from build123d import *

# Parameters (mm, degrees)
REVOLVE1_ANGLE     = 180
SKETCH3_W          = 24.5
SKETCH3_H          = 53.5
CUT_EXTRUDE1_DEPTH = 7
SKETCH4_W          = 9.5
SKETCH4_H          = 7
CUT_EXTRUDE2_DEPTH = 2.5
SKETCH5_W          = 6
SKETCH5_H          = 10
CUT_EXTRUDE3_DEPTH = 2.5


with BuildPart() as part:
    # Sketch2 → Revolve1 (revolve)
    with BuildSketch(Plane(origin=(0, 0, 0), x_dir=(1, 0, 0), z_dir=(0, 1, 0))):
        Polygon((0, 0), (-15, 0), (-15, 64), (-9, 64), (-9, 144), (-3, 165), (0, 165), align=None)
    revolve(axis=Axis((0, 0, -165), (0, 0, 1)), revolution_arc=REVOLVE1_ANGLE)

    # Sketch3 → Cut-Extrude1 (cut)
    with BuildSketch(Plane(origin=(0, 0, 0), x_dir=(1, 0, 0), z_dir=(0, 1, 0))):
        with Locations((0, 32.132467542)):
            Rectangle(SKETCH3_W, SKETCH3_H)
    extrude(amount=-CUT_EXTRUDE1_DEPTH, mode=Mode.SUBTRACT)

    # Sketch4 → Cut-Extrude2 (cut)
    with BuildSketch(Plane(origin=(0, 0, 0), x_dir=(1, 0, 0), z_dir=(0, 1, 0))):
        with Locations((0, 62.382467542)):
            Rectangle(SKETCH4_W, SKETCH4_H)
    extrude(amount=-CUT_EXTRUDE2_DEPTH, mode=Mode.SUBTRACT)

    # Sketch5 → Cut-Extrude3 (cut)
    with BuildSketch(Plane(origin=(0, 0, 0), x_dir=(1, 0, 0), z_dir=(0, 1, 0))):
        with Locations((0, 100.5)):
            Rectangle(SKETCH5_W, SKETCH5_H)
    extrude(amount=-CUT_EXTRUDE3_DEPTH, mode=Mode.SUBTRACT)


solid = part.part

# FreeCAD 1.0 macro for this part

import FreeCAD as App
import Part
import Sketcher
from FreeCAD import Vector


def add_polygon(sketch, points):
    """Adds a closed chain of lines whose ends are joined by coincident constraints."""
    first, n = sketch.GeometryCount, len(points)
    for a, b in zip(points, points[1:] + points[:1]):
        sketch.addGeometry(Part.LineSegment(App.Vector(*a, 0), App.Vector(*b, 0)), False)
    for i in range(n):
        sketch.addConstraint(Sketcher.Constraint("Coincident", first + i, 2, first + (i + 1) % n, 1))

doc = App.newDocument("Part")
body = doc.addObject("PartDesign::Body", "Body")

sketch1 = doc.addObject("Sketcher::SketchObject", "Sketch")
body.addObject(sketch1)
sketch1.AttachmentSupport = (doc.XZ_Plane, [""])
sketch1.MapMode = "FlatFace"
add_polygon(sketch1, [(-15, 0), (0, 0), (0, -165), (-3, -165), (-9, -144), (-9, -64), (-15, -64)])
sketch1.addConstraint(Sketcher.Constraint("Horizontal", 0))
sketch1.addConstraint(Sketcher.Constraint("Vertical", 1))
sketch1.addConstraint(Sketcher.Constraint("Horizontal", 2))
sketch1.addConstraint(Sketcher.Constraint("Vertical", 4))
sketch1.addConstraint(Sketcher.Constraint("Horizontal", 5))
sketch1.addConstraint(Sketcher.Constraint("Vertical", 6))
sketch1.addConstraint(Sketcher.Constraint("Coincident", 0, 2, -1, 1))
sketch1.addConstraint(Sketcher.Constraint("DistanceX", 0, 1, 0, 2, 15.0))
sketch1.addConstraint(Sketcher.Constraint("DistanceX", 2, 2, 2, 1, 3.0))
sketch1.addConstraint(Sketcher.Constraint("DistanceX", 5, 2, 5, 1, 6.0))
sketch1.addConstraint(Sketcher.Constraint("DistanceY", 1, 2, 1, 1, 165.0))
sketch1.addConstraint(Sketcher.Constraint("DistanceY", 4, 1, 4, 2, 80.0))
sketch1.addConstraint(Sketcher.Constraint("DistanceY", 6, 1, 6, 2, 64.0))
revolution = doc.addObject("PartDesign::Revolution", "Revolution")
body.addObject(revolution)
revolution.Profile = sketch1
revolution.ReferenceAxis = (sketch1, ["V_Axis"])
revolution.Angle = 180

sketch2 = doc.addObject("Sketcher::SketchObject", "Sketch001")
body.addObject(sketch2)
sketch2.AttachmentSupport = (doc.XZ_Plane, [""])
sketch2.MapMode = "FlatFace"
add_polygon(sketch2, [(-12.25, -58.882468), (-12.25, -5.382468), (12.25, -5.382468), (12.25, -58.882468)])
sketch2.addConstraint(Sketcher.Constraint("Vertical", 0))
sketch2.addConstraint(Sketcher.Constraint("Horizontal", 1))
sketch2.addConstraint(Sketcher.Constraint("Vertical", 2))
sketch2.addConstraint(Sketcher.Constraint("Horizontal", 3))
sketch2.addConstraint(Sketcher.Constraint("DistanceX", 1, 1, 1, 2, 24.5))
sketch2.addConstraint(Sketcher.Constraint("DistanceY", 0, 1, 0, 2, 53.5))
sketch2.addConstraint(Sketcher.Constraint("DistanceX", 0, 2, -1, 1, 12.25))
sketch2.addConstraint(Sketcher.Constraint("DistanceY", 0, 2, -1, 1, 5.382468))
pocket1 = doc.addObject("PartDesign::Pocket", "Pocket")
body.addObject(pocket1)
pocket1.Profile = sketch2
pocket1.Length = 7
pocket1.Reversed = True

sketch3 = doc.addObject("Sketcher::SketchObject", "Sketch002")
body.addObject(sketch3)
sketch3.AttachmentSupport = (doc.XZ_Plane, [""])
sketch3.MapMode = "FlatFace"
add_polygon(sketch3, [(-4.75, -65.882468), (-4.75, -58.882468), (4.75, -58.882468), (4.75, -65.882468)])
sketch3.addConstraint(Sketcher.Constraint("Vertical", 0))
sketch3.addConstraint(Sketcher.Constraint("Horizontal", 1))
sketch3.addConstraint(Sketcher.Constraint("Vertical", 2))
sketch3.addConstraint(Sketcher.Constraint("Horizontal", 3))
sketch3.addConstraint(Sketcher.Constraint("DistanceY", 0, 1, 0, 2, 7.0))
sketch3.addConstraint(Sketcher.Constraint("DistanceX", 1, 1, 1, 2, 9.5))
sketch3.addConstraint(Sketcher.Constraint("DistanceX", 0, 2, -1, 1, 4.75))
sketch3.addConstraint(Sketcher.Constraint("DistanceY", 0, 2, -1, 1, 58.882468))
pocket2 = doc.addObject("PartDesign::Pocket", "Pocket001")
body.addObject(pocket2)
pocket2.Profile = sketch3
pocket2.Length = 2.5
pocket2.Reversed = True

sketch4 = doc.addObject("Sketcher::SketchObject", "Sketch003")
body.addObject(sketch4)
sketch4.AttachmentSupport = (doc.XZ_Plane, [""])
sketch4.MapMode = "FlatFace"
add_polygon(sketch4, [(-3, -105.5), (-3, -95.5), (3, -95.5), (3, -105.5)])
sketch4.addConstraint(Sketcher.Constraint("Vertical", 0))
sketch4.addConstraint(Sketcher.Constraint("Horizontal", 1))
sketch4.addConstraint(Sketcher.Constraint("Vertical", 2))
sketch4.addConstraint(Sketcher.Constraint("Horizontal", 3))
sketch4.addConstraint(Sketcher.Constraint("DistanceX", 1, 1, 1, 2, 6.0))
sketch4.addConstraint(Sketcher.Constraint("DistanceY", 0, 1, 0, 2, 10.0))
sketch4.addConstraint(Sketcher.Constraint("DistanceX", 0, 2, -1, 1, 3.0))
sketch4.addConstraint(Sketcher.Constraint("DistanceY", 0, 2, -1, 1, 95.5))
pocket3 = doc.addObject("PartDesign::Pocket", "Pocket002")
body.addObject(pocket3)
pocket3.Profile = sketch4
pocket3.Length = 2.5
pocket3.Reversed = True

doc.recompute()
